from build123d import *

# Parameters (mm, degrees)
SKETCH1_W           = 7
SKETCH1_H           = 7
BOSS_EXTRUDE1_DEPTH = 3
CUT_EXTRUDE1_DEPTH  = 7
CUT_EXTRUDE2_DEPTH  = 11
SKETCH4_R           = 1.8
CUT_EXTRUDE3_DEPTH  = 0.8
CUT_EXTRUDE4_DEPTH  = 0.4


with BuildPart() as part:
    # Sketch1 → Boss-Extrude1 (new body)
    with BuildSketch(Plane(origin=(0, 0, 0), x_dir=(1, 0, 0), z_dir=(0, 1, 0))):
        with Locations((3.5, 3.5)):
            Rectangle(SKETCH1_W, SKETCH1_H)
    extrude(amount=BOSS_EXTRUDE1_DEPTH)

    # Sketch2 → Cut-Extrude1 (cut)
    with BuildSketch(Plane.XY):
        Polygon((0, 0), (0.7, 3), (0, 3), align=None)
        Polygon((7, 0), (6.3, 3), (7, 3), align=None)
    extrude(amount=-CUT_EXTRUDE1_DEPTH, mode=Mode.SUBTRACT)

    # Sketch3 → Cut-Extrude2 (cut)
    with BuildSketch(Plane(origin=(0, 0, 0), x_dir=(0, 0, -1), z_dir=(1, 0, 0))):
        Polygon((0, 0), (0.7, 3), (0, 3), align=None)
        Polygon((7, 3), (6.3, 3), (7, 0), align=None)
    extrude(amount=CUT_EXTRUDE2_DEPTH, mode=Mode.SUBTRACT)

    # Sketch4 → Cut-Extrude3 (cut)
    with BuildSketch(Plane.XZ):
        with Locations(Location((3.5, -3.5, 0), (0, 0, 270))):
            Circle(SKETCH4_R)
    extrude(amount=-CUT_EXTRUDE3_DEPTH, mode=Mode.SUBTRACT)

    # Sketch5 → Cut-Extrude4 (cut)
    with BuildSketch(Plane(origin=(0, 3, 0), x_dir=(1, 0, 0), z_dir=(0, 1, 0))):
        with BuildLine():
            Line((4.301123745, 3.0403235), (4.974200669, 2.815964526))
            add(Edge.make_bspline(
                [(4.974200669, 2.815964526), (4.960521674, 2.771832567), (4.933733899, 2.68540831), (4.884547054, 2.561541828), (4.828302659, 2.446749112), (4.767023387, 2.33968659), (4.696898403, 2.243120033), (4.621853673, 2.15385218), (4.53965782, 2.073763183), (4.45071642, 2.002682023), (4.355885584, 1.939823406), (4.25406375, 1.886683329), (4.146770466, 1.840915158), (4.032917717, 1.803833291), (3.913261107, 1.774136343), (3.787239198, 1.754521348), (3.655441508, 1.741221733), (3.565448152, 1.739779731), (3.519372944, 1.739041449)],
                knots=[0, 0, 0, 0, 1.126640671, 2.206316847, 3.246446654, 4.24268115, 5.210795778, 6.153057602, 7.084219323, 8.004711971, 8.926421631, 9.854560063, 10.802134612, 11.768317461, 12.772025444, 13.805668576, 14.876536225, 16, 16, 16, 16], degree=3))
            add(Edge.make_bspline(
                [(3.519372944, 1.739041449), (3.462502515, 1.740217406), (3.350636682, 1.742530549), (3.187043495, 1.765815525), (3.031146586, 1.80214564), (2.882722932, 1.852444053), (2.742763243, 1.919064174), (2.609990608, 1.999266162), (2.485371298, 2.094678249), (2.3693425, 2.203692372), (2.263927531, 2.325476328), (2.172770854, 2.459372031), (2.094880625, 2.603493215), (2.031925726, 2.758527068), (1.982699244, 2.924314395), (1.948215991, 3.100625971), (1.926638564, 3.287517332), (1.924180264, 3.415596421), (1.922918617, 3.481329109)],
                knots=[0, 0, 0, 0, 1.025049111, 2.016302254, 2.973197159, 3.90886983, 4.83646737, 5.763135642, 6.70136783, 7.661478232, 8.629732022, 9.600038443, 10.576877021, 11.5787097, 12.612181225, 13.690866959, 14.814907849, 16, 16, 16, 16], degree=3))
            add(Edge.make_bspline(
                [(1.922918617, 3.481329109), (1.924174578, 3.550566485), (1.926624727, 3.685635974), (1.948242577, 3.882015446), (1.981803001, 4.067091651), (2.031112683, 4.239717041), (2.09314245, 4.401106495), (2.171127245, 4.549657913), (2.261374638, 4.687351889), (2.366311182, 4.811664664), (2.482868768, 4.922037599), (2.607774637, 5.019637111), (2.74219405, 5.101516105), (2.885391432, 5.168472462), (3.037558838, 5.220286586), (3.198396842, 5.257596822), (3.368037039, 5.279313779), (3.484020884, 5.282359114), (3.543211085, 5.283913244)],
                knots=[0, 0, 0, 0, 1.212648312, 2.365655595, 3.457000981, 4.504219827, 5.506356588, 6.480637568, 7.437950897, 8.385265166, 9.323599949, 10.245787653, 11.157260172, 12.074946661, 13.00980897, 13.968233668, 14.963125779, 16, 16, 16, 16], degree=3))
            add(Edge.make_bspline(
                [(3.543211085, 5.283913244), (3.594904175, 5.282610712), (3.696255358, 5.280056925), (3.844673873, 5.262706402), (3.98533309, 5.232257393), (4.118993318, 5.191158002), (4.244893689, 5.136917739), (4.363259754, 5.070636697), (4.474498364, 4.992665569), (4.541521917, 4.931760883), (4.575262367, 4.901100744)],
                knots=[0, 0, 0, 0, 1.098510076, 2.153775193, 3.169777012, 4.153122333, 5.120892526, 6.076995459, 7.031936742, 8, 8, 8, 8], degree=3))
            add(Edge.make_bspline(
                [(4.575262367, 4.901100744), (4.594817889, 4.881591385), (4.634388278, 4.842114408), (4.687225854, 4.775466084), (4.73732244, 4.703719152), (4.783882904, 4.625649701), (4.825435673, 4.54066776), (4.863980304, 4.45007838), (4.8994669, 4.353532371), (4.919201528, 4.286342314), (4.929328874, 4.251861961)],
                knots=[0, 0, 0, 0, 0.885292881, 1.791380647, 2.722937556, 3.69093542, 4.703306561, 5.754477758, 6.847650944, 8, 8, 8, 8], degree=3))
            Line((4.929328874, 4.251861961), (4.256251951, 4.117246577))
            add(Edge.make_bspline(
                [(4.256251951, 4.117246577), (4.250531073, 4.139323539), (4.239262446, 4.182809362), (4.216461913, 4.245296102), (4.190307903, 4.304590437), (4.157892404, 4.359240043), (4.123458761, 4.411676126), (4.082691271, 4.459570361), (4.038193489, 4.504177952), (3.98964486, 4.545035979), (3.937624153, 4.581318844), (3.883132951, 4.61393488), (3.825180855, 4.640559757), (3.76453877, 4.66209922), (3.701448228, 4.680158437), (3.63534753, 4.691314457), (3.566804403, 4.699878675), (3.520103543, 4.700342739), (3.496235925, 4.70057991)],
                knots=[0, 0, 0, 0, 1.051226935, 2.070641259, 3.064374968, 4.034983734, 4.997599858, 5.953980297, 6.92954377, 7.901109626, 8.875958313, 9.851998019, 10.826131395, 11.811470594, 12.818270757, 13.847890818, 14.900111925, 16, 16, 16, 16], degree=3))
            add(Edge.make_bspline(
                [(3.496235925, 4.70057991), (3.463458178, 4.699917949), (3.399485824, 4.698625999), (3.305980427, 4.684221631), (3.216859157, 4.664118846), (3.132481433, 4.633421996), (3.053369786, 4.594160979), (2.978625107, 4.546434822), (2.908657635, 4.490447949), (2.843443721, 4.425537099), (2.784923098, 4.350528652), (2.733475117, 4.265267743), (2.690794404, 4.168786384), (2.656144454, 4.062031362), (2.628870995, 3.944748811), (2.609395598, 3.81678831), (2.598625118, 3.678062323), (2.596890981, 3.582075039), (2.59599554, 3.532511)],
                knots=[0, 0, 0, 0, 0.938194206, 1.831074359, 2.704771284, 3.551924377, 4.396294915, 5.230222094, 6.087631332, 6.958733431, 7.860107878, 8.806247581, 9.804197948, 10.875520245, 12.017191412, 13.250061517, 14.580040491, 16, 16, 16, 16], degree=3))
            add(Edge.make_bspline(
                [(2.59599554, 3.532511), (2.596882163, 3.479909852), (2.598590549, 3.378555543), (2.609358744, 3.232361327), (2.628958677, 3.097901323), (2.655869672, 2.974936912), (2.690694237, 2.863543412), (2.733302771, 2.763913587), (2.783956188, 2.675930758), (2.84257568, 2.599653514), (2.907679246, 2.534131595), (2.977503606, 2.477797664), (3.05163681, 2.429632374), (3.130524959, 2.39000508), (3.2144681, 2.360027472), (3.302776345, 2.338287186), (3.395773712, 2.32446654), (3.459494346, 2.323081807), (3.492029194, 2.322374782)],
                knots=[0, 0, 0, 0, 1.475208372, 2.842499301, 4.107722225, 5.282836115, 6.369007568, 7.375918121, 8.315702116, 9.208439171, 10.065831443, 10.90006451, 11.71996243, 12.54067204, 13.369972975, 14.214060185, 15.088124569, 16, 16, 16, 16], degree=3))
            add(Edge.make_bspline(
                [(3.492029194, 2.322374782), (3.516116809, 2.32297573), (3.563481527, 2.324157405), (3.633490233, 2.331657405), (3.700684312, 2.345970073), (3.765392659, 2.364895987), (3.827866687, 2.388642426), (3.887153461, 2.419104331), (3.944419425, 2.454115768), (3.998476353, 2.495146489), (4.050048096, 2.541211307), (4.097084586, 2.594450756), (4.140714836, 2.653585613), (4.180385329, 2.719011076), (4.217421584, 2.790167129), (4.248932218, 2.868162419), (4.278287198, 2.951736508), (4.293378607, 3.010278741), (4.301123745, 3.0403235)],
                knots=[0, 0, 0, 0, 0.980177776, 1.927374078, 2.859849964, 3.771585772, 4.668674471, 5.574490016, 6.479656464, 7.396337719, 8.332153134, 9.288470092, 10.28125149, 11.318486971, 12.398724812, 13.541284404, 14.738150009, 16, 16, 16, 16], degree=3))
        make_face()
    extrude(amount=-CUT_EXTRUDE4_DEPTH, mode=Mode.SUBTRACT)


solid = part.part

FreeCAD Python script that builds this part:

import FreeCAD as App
import Part
import Sketcher

doc = App.newDocument("Part")
body = doc.addObject("PartDesign::Body", "Body")

# Sketch on XZ plane
sketch1 = doc.addObject("Sketcher::SketchObject", "Sketch")
body.addObject(sketch1)
sketch1.AttachmentSupport = (doc.XZ_Plane, [""])
sketch1.MapMode = "FlatFace"
sketch1.addGeometry(Part.LineSegment(App.Vector(0, -7, 0), App.Vector(0, 0, 0)), False)
sketch1.addGeometry(Part.LineSegment(App.Vector(0, 0, 0), App.Vector(7, 0, 0)), False)
sketch1.addGeometry(Part.LineSegment(App.Vector(7, 0, 0), App.Vector(7, -7, 0)), False)
sketch1.addGeometry(Part.LineSegment(App.Vector(7, -7, 0), App.Vector(0, -7, 0)), False)
sketch1.addConstraint(Sketcher.Constraint("Coincident", 0, 2, 1, 1))
sketch1.addConstraint(Sketcher.Constraint("Coincident", 1, 2, 2, 1))
sketch1.addConstraint(Sketcher.Constraint("Coincident", 2, 2, 3, 1))
sketch1.addConstraint(Sketcher.Constraint("Coincident", 3, 2, 0, 1))
sketch1.addConstraint(Sketcher.Constraint("Vertical", 0))
sketch1.addConstraint(Sketcher.Constraint("Horizontal", 1))
sketch1.addConstraint(Sketcher.Constraint("Vertical", 2))
sketch1.addConstraint(Sketcher.Constraint("Horizontal", 3))
sketch1.addConstraint(Sketcher.Constraint("Coincident", 0, 2, -1, 1))
sketch1.addConstraint(Sketcher.Constraint("Equal", 3, 0))
sketch1.addConstraint(Sketcher.Constraint("DistanceX", 1, 1, 1, 2, 7.0))
pad1 = doc.addObject("PartDesign::Pad", "Pad")
body.addObject(pad1)
pad1.Profile = sketch1
pad1.Length = 3
pad1.Reversed = True

# Sketch on XY plane
sketch2 = doc.addObject("Sketcher::SketchObject", "Sketch001")
body.addObject(sketch2)
sketch2.AttachmentSupport = (doc.XY_Plane, [""])
sketch2.MapMode = "FlatFace"
sketch2.addGeometry(Part.LineSegment(App.Vector(0, 0, 0), App.Vector(0.7, 3, 0)), False)
sketch2.addGeometry(Part.LineSegment(App.Vector(0.7, 3, 0), App.Vector(0, 3, 0)), False)
sketch2.addGeometry(Part.LineSegment(App.Vector(0, 3, 0), App.Vector(0, 0, 0)), False)
sketch2.addGeometry(Part.LineSegment(App.Vector(6.3, 3, 0), App.Vector(7, 0, 0)), False)
sketch2.addGeometry(Part.LineSegment(App.Vector(7, 0, 0), App.Vector(7, 3, 0)), False)
sketch2.addGeometry(Part.LineSegment(App.Vector(7, 3, 0), App.Vector(6.3, 3, 0)), False)
sketch2.addConstraint(Sketcher.Constraint("Coincident", 0, 2, 1, 1))
sketch2.addConstraint(Sketcher.Constraint("Coincident", 1, 2, 2, 1))
sketch2.addConstraint(Sketcher.Constraint("Coincident", 2, 2, 0, 1))
sketch2.addConstraint(Sketcher.Constraint("Coincident", 3, 2, 4, 1))
sketch2.addConstraint(Sketcher.Constraint("Coincident", 4, 2, 5, 1))
sketch2.addConstraint(Sketcher.Constraint("Coincident", 5, 2, 3, 1))
sketch2.addConstraint(Sketcher.Constraint("Horizontal", 1))
sketch2.addConstraint(Sketcher.Constraint("Vertical", 2))
sketch2.addConstraint(Sketcher.Constraint("Vertical", 4))
sketch2.addConstraint(Sketcher.Constraint("Horizontal", 5))
sketch2.addConstraint(Sketcher.Constraint("Coincident", 2, 2, -1, 1))
sketch2.addConstraint(Sketcher.Constraint("PointOnObject", 3, 2, -1))
sketch2.addConstraint(Sketcher.Constraint("Horizontal", 1, 2, 4, 2))
sketch2.addConstraint(Sketcher.Constraint("Equal", 1, 5))
sketch2.addConstraint(Sketcher.Constraint("DistanceY", 2, 2, 2, 1, 3.0))
sketch2.addConstraint(Sketcher.Constraint("DistanceX", 1, 2, 1, 1, 0.7))
sketch2.addConstraint(Sketcher.Constraint("DistanceX", -1, 1, 3, 2, 7.0))
pocket1 = doc.addObject("PartDesign::Pocket", "Pocket")
body.addObject(pocket1)
pocket1.Profile = sketch2
pocket1.Length = 7

# Sketch on YZ plane
sketch3 = doc.addObject("Sketcher::SketchObject", "Sketch002")
body.addObject(sketch3)
sketch3.AttachmentSupport = (doc.YZ_Plane, [""])
sketch3.MapMode = "FlatFace"
sketch3.addGeometry(Part.LineSegment(App.Vector(0, 0, 0), App.Vector(3, -0.7, 0)), False)
sketch3.addGeometry(Part.LineSegment(App.Vector(3, -0.7, 0), App.Vector(3, 0, 0)), False)
sketch3.addGeometry(Part.LineSegment(App.Vector(3, 0, 0), App.Vector(0, 0, 0)), False)
sketch3.addGeometry(Part.LineSegment(App.Vector(3, -7, 0), App.Vector(3, -6.3, 0)), False)
sketch3.addGeometry(Part.LineSegment(App.Vector(3, -6.3, 0), App.Vector(0, -7, 0)), False)
sketch3.addGeometry(Part.LineSegment(App.Vector(0, -7, 0), App.Vector(3, -7, 0)), False)
sketch3.addConstraint(Sketcher.Constraint("Coincident", 0, 2, 1, 1))
sketch3.addConstraint(Sketcher.Constraint("Coincident", 1, 2, 2, 1))
sketch3.addConstraint(Sketcher.Constraint("Coincident", 2, 2, 0, 1))
sketch3.addConstraint(Sketcher.Constraint("Coincident", 3, 2, 4, 1))
sketch3.addConstraint(Sketcher.Constraint("Coincident", 4, 2, 5, 1))
sketch3.addConstraint(Sketcher.Constraint("Coincident", 5, 2, 3, 1))
sketch3.addConstraint(Sketcher.Constraint("Vertical", 1))
sketch3.addConstraint(Sketcher.Constraint("Horizontal", 2))
sketch3.addConstraint(Sketcher.Constraint("Vertical", 3))
sketch3.addConstraint(Sketcher.Constraint("Horizontal", 5))
sketch3.addConstraint(Sketcher.Constraint("Coincident", 2, 2, -1, 1))
sketch3.addConstraint(Sketcher.Constraint("PointOnObject", 4, 2, -2))
sketch3.addConstraint(Sketcher.Constraint("Vertical", 1, 2, 3, 2))
sketch3.addConstraint(Sketcher.Constraint("Equal", 1, 3))
sketch3.addConstraint(Sketcher.Constraint("DistanceX", 2, 2, 2, 1, 3.0))
sketch3.addConstraint(Sketcher.Constraint("DistanceY", 1, 1, 1, 2, 0.7))
sketch3.addConstraint(Sketcher.Constraint("DistanceY", 4, 2, -1, 1, 7.0))
pocket2 = doc.addObject("PartDesign::Pocket", "Pocket001")
body.addObject(pocket2)
pocket2.Profile = sketch3
pocket2.Length = 11
pocket2.Reversed = True

# Sketch on XZ plane
sketch4 = doc.addObject("Sketcher::SketchObject", "Sketch003")
body.addObject(sketch4)
sketch4.AttachmentSupport = (doc.XZ_Plane, [""])
sketch4.MapMode = "FlatFace"
sketch4.addGeometry(Part.Circle(App.Vector(3.5, -3.5, 0), App.Vector(0, 0, 1), 1.8), False)
sketch4.addConstraint(Sketcher.Constraint("Diameter", 0, 3.6))
sketch4.addConstraint(Sketcher.Constraint("DistanceX", -1, 1, 0, 3, 3.5))
sketch4.addConstraint(Sketcher.Constraint("DistanceY", 0, 3, -1, 1, 3.5))
pocket3 = doc.addObject("PartDesign::Pocket", "Pocket002")
body.addObject(pocket3)
pocket3.Profile = sketch4
pocket3.Length = 0.8

# Sketch on XZ plane
sketch5 = doc.addObject("Sketcher::SketchObject", "Sketch004")
body.addObject(sketch5)
sketch5.AttachmentSupport = (doc.XZ_Plane, [""])
sketch5.MapMode = "FlatFace"
sketch5.AttachmentOffset = App.Placement(App.Vector(0, 0, -3), App.Rotation())
sketch5.addGeometry(Part.LineSegment(App.Vector(4.974201, -2.815965, 0), App.Vector(4.301124, -3.040323, 0)), False)
sketch5.addGeometry(Part.BSplineCurve([App.Vector(3.492029, -2.322375, 0), App.Vector(3.516117, -2.322976, 0), App.Vector(3.563482, -2.324157, 0), App.Vector(3.63349, -2.331657, 0), App.Vector(3.700684, -2.34597, 0), App.Vector(3.765393, -2.364896, 0), App.Vector(3.827867, -2.388642, 0), App.Vector(3.887153, -2.419104, 0), App.Vector(3.944419, -2.454116, 0), App.Vector(3.998476, -2.495146, 0), App.Vector(4.050048, -2.541211, 0), App.Vector(4.097085, -2.594451, 0), App.Vector(4.140715, -2.653586, 0), App.Vector(4.180385, -2.719011, 0), App.Vector(4.217422, -2.790167, 0), App.Vector(4.248932, -2.868162, 0), App.Vector(4.278287, -2.951737, 0), App.Vector(4.293379, -3.010279, 0), App.Vector(4.301124, -3.040323, 0)], [4, 1, 1, 1, 1, 1, 1, 1, 1, 1, 1, 1, 1, 1, 1, 1, 4], [0, 0.980177776, 1.927374078, 2.859849964, 3.771585772, 4.668674471, 5.574490016, 6.479656464, 7.396337719, 8.332153134, 9.288470092, 10.28125149, 11.318486971, 12.398724812, 13.541284404, 14.738150009, 16], False, 3, [1, 1, 1, 1, 1, 1, 1, 1, 1, 1, 1, 1, 1, 1, 1, 1, 1, 1, 1], False), False)
sketch5.addGeometry(Part.BSplineCurve([App.Vector(2.595996, -3.532511, 0), App.Vector(2.596882, -3.47991, 0), App.Vector(2.598591, -3.378556, 0), App.Vector(2.609359, -3.232361, 0), App.Vector(2.628959, -3.097901, 0), App.Vector(2.65587, -2.974937, 0), App.Vector(2.690694, -2.863543, 0), App.Vector(2.733303, -2.763914, 0), App.Vector(2.783956, -2.675931, 0), App.Vector(2.842576, -2.599654, 0), App.Vector(2.907679, -2.534132, 0), App.Vector(2.977504, -2.477798, 0), App.Vector(3.051637, -2.429632, 0), App.Vector(3.130525, -2.390005, 0), App.Vector(3.214468, -2.360027, 0), App.Vector(3.302776, -2.338287, 0), App.Vector(3.395774, -2.324467, 0), App.Vector(3.459494, -2.323082, 0), App.Vector(3.492029, -2.322375, 0)], [4, 1, 1, 1, 1, 1, 1, 1, 1, 1, 1, 1, 1, 1, 1, 1, 4], [0, 1.475208372, 2.842499301, 4.107722225, 5.282836115, 6.369007568, 7.375918121, 8.315702116, 9.208439171, 10.065831443, 10.90006451, 11.71996243, 12.54067204, 13.369972975, 14.214060185, 15.088124569, 16], False, 3, [1, 1, 1, 1, 1, 1, 1, 1, 1, 1, 1, 1, 1, 1, 1, 1, 1, 1, 1], False), False)
sketch5.addGeometry(Part.BSplineCurve([App.Vector(3.496236, -4.70058, 0), App.Vector(3.463458, -4.699918, 0), App.Vector(3.399486, -4.698626, 0), App.Vector(3.30598, -4.684222, 0), App.Vector(3.216859, -4.664119, 0), App.Vector(3.132481, -4.633422, 0), App.Vector(3.05337, -4.594161, 0), App.Vector(2.978625, -4.546435, 0), App.Vector(2.908658, -4.490448, 0), App.Vector(2.843444, -4.425537, 0), App.Vector(2.784923, -4.350529, 0), App.Vector(2.733475, -4.265268, 0), App.Vector(2.690794, -4.168786, 0), App.Vector(2.656144, -4.062031, 0), App.Vector(2.628871, -3.944749, 0), App.Vector(2.609396, -3.816788, 0), App.Vector(2.598625, -3.678062, 0), App.Vector(2.596891, -3.582075, 0), App.Vector(2.595996, -3.532511, 0)], [4, 1, 1, 1, 1, 1, 1, 1, 1, 1, 1, 1, 1, 1, 1, 1, 4], [0, 0.938194206, 1.831074359, 2.704771284, 3.551924377, 4.396294915, 5.230222094, 6.087631332, 6.958733431, 7.860107878, 8.806247581, 9.804197948, 10.875520245, 12.017191412, 13.250061517, 14.580040491, 16], False, 3, [1, 1, 1, 1, 1, 1, 1, 1, 1, 1, 1, 1, 1, 1, 1, 1, 1, 1, 1], False), False)
sketch5.addGeometry(Part.BSplineCurve([App.Vector(4.256252, -4.117247, 0), App.Vector(4.250531, -4.139324, 0), App.Vector(4.239262, -4.182809, 0), App.Vector(4.216462, -4.245296, 0), App.Vector(4.190308, -4.30459, 0), App.Vector(4.157892, -4.35924, 0), App.Vector(4.123459, -4.411676, 0), App.Vector(4.082691, -4.45957, 0), App.Vector(4.038193, -4.504178, 0), App.Vector(3.989645, -4.545036, 0), App.Vector(3.937624, -4.581319, 0), App.Vector(3.883133, -4.613935, 0), App.Vector(3.825181, -4.64056, 0), App.Vector(3.764539, -4.662099, 0), App.Vector(3.701448, -4.680158, 0), App.Vector(3.635348, -4.691314, 0), App.Vector(3.566804, -4.699879, 0), App.Vector(3.520104, -4.700343, 0), App.Vector(3.496236, -4.70058, 0)], [4, 1, 1, 1, 1, 1, 1, 1, 1, 1, 1, 1, 1, 1, 1, 1, 4], [0, 1.051226935, 2.070641259, 3.064374968, 4.034983734, 4.997599858, 5.953980297, 6.92954377, 7.901109626, 8.875958313, 9.851998019, 10.826131395, 11.811470594, 12.818270757, 13.847890818, 14.900111925, 16], False, 3, [1, 1, 1, 1, 1, 1, 1, 1, 1, 1, 1, 1, 1, 1, 1, 1, 1, 1, 1], False), False)
sketch5.addGeometry(Part.LineSegment(App.Vector(4.256252, -4.117247, 0), App.Vector(4.929329, -4.251862, 0)), False)
sketch5.addGeometry(Part.BSplineCurve([App.Vector(4.575262, -4.901101, 0), App.Vector(4.594818, -4.881591, 0), App.Vector(4.634388, -4.842114, 0), App.Vector(4.687226, -4.775466, 0), App.Vector(4.737322, -4.703719, 0), App.Vector(4.783883, -4.62565, 0), App.Vector(4.825436, -4.540668, 0), App.Vector(4.86398, -4.450078, 0), App.Vector(4.899467, -4.353532, 0), App.Vector(4.919202, -4.286342, 0), App.Vector(4.929329, -4.251862, 0)], [4, 1, 1, 1, 1, 1, 1, 1, 4], [0, 0.885292881, 1.791380647, 2.722937556, 3.69093542, 4.703306561, 5.754477758, 6.847650944, 8], False, 3, [1, 1, 1, 1, 1, 1, 1, 1, 1, 1, 1], False), False)
sketch5.addGeometry(Part.BSplineCurve([App.Vector(3.543211, -5.283913, 0), App.Vector(3.594904, -5.282611, 0), App.Vector(3.696255, -5.280057, 0), App.Vector(3.844674, -5.262706, 0), App.Vector(3.985333, -5.232257, 0), App.Vector(4.118993, -5.191158, 0), App.Vector(4.244894, -5.136918, 0), App.Vector(4.36326, -5.070637, 0), App.Vector(4.474498, -4.992666, 0), App.Vector(4.541522, -4.931761, 0), App.Vector(4.575262, -4.901101, 0)], [4, 1, 1, 1, 1, 1, 1, 1, 4], [0, 1.098510076, 2.153775193, 3.169777012, 4.153122333, 5.120892526, 6.076995459, 7.031936742, 8], False, 3, [1, 1, 1, 1, 1, 1, 1, 1, 1, 1, 1], False), False)
sketch5.addGeometry(Part.BSplineCurve([App.Vector(1.922919, -3.481329, 0), App.Vector(1.924175, -3.550566, 0), App.Vector(1.926625, -3.685636, 0), App.Vector(1.948243, -3.882015, 0), App.Vector(1.981803, -4.067092, 0), App.Vector(2.031113, -4.239717, 0), App.Vector(2.093142, -4.401106, 0), App.Vector(2.171127, -4.549658, 0), App.Vector(2.261375, -4.687352, 0), App.Vector(2.366311, -4.811665, 0), App.Vector(2.482869, -4.922038, 0), App.Vector(2.607775, -5.019637, 0), App.Vector(2.742194, -5.101516, 0), App.Vector(2.885391, -5.168472, 0), App.Vector(3.037559, -5.220287, 0), App.Vector(3.198397, -5.257597, 0), App.Vector(3.368037, -5.279314, 0), App.Vector(3.484021, -5.282359, 0), App.Vector(3.543211, -5.283913, 0)], [4, 1, 1, 1, 1, 1, 1, 1, 1, 1, 1, 1, 1, 1, 1, 1, 4], [0, 1.212648312, 2.365655595, 3.457000981, 4.504219827, 5.506356588, 6.480637568, 7.437950897, 8.385265166, 9.323599949, 10.245787653, 11.157260172, 12.074946661, 13.00980897, 13.968233668, 14.963125779, 16], False, 3, [1, 1, 1, 1, 1, 1, 1, 1, 1, 1, 1, 1, 1, 1, 1, 1, 1, 1, 1], False), False)
sketch5.addGeometry(Part.BSplineCurve([App.Vector(3.519373, -1.739041, 0), App.Vector(3.462503, -1.740217, 0), App.Vector(3.350637, -1.742531, 0), App.Vector(3.187043, -1.765816, 0), App.Vector(3.031147, -1.802146, 0), App.Vector(2.882723, -1.852444, 0), App.Vector(2.742763, -1.919064, 0), App.Vector(2.609991, -1.999266, 0), App.Vector(2.485371, -2.094678, 0), App.Vector(2.369343, -2.203692, 0), App.Vector(2.263928, -2.325476, 0), App.Vector(2.172771, -2.459372, 0), App.Vector(2.094881, -2.603493, 0), App.Vector(2.031926, -2.758527, 0), App.Vector(1.982699, -2.924314, 0), App.Vector(1.948216, -3.100626, 0), App.Vector(1.926639, -3.287517, 0), App.Vector(1.92418, -3.415596, 0), App.Vector(1.922919, -3.481329, 0)], [4, 1, 1, 1, 1, 1, 1, 1, 1, 1, 1, 1, 1, 1, 1, 1, 4], [0, 1.025049111, 2.016302254, 2.973197159, 3.90886983, 4.83646737, 5.763135642, 6.70136783, 7.661478232, 8.629732022, 9.600038443, 10.576877021, 11.5787097, 12.612181225, 13.690866959, 14.814907849, 16], False, 3, [1, 1, 1, 1, 1, 1, 1, 1, 1, 1, 1, 1, 1, 1, 1, 1, 1, 1, 1], False), False)
sketch5.addGeometry(Part.BSplineCurve([App.Vector(4.974201, -2.815965, 0), App.Vector(4.960522, -2.771833, 0), App.Vector(4.933734, -2.685408, 0), App.Vector(4.884547, -2.561542, 0), App.Vector(4.828303, -2.446749, 0), App.Vector(4.767023, -2.339687, 0), App.Vector(4.696898, -2.24312, 0), App.Vector(4.621854, -2.153852, 0), App.Vector(4.539658, -2.073763, 0), App.Vector(4.450716, -2.002682, 0), App.Vector(4.355886, -1.939823, 0), App.Vector(4.254064, -1.886683, 0), App.Vector(4.14677, -1.840915, 0), App.Vector(4.032918, -1.803833, 0), App.Vector(3.913261, -1.774136, 0), App.Vector(3.787239, -1.754521, 0), App.Vector(3.655442, -1.741222, 0), App.Vector(3.565448, -1.73978, 0), App.Vector(3.519373, -1.739041, 0)], [4, 1, 1, 1, 1, 1, 1, 1, 1, 1, 1, 1, 1, 1, 1, 1, 4], [0, 1.126640671, 2.206316847, 3.246446654, 4.24268115, 5.210795778, 6.153057602, 7.084219323, 8.004711971, 8.926421631, 9.854560063, 10.802134612, 11.768317461, 12.772025444, 13.805668576, 14.876536225, 16], False, 3, [1, 1, 1, 1, 1, 1, 1, 1, 1, 1, 1, 1, 1, 1, 1, 1, 1, 1, 1], False), False)
sketch5.addConstraint(Sketcher.Constraint("Block", 1))
sketch5.addConstraint(Sketcher.Constraint("Block", 2))
sketch5.addConstraint(Sketcher.Constraint("Block", 3))
sketch5.addConstraint(Sketcher.Constraint("Block", 4))
sketch5.addConstraint(Sketcher.Constraint("Block", 6))
sketch5.addConstraint(Sketcher.Constraint("Block", 7))
sketch5.addConstraint(Sketcher.Constraint("Block", 8))
sketch5.addConstraint(Sketcher.Constraint("Block", 9))
sketch5.addConstraint(Sketcher.Constraint("Block", 10))
sketch5.addConstraint(Sketcher.Constraint("Coincident", 0, 2, 1, 2))
sketch5.addConstraint(Sketcher.Constraint("Coincident", 4, 1, 5, 1))
sketch5.addConstraint(Sketcher.Constraint("Coincident", 5, 2, 6, 2))
sketch5.addConstraint(Sketcher.Constraint("Coincident", 10, 1, 0, 1))
pocket4 = doc.addObject("PartDesign::Pocket", "Pocket003")
body.addObject(pocket4)
pocket4.Profile = sketch5
pocket4.Length = 0.4
pocket4.Reversed = True

doc.recompute()
